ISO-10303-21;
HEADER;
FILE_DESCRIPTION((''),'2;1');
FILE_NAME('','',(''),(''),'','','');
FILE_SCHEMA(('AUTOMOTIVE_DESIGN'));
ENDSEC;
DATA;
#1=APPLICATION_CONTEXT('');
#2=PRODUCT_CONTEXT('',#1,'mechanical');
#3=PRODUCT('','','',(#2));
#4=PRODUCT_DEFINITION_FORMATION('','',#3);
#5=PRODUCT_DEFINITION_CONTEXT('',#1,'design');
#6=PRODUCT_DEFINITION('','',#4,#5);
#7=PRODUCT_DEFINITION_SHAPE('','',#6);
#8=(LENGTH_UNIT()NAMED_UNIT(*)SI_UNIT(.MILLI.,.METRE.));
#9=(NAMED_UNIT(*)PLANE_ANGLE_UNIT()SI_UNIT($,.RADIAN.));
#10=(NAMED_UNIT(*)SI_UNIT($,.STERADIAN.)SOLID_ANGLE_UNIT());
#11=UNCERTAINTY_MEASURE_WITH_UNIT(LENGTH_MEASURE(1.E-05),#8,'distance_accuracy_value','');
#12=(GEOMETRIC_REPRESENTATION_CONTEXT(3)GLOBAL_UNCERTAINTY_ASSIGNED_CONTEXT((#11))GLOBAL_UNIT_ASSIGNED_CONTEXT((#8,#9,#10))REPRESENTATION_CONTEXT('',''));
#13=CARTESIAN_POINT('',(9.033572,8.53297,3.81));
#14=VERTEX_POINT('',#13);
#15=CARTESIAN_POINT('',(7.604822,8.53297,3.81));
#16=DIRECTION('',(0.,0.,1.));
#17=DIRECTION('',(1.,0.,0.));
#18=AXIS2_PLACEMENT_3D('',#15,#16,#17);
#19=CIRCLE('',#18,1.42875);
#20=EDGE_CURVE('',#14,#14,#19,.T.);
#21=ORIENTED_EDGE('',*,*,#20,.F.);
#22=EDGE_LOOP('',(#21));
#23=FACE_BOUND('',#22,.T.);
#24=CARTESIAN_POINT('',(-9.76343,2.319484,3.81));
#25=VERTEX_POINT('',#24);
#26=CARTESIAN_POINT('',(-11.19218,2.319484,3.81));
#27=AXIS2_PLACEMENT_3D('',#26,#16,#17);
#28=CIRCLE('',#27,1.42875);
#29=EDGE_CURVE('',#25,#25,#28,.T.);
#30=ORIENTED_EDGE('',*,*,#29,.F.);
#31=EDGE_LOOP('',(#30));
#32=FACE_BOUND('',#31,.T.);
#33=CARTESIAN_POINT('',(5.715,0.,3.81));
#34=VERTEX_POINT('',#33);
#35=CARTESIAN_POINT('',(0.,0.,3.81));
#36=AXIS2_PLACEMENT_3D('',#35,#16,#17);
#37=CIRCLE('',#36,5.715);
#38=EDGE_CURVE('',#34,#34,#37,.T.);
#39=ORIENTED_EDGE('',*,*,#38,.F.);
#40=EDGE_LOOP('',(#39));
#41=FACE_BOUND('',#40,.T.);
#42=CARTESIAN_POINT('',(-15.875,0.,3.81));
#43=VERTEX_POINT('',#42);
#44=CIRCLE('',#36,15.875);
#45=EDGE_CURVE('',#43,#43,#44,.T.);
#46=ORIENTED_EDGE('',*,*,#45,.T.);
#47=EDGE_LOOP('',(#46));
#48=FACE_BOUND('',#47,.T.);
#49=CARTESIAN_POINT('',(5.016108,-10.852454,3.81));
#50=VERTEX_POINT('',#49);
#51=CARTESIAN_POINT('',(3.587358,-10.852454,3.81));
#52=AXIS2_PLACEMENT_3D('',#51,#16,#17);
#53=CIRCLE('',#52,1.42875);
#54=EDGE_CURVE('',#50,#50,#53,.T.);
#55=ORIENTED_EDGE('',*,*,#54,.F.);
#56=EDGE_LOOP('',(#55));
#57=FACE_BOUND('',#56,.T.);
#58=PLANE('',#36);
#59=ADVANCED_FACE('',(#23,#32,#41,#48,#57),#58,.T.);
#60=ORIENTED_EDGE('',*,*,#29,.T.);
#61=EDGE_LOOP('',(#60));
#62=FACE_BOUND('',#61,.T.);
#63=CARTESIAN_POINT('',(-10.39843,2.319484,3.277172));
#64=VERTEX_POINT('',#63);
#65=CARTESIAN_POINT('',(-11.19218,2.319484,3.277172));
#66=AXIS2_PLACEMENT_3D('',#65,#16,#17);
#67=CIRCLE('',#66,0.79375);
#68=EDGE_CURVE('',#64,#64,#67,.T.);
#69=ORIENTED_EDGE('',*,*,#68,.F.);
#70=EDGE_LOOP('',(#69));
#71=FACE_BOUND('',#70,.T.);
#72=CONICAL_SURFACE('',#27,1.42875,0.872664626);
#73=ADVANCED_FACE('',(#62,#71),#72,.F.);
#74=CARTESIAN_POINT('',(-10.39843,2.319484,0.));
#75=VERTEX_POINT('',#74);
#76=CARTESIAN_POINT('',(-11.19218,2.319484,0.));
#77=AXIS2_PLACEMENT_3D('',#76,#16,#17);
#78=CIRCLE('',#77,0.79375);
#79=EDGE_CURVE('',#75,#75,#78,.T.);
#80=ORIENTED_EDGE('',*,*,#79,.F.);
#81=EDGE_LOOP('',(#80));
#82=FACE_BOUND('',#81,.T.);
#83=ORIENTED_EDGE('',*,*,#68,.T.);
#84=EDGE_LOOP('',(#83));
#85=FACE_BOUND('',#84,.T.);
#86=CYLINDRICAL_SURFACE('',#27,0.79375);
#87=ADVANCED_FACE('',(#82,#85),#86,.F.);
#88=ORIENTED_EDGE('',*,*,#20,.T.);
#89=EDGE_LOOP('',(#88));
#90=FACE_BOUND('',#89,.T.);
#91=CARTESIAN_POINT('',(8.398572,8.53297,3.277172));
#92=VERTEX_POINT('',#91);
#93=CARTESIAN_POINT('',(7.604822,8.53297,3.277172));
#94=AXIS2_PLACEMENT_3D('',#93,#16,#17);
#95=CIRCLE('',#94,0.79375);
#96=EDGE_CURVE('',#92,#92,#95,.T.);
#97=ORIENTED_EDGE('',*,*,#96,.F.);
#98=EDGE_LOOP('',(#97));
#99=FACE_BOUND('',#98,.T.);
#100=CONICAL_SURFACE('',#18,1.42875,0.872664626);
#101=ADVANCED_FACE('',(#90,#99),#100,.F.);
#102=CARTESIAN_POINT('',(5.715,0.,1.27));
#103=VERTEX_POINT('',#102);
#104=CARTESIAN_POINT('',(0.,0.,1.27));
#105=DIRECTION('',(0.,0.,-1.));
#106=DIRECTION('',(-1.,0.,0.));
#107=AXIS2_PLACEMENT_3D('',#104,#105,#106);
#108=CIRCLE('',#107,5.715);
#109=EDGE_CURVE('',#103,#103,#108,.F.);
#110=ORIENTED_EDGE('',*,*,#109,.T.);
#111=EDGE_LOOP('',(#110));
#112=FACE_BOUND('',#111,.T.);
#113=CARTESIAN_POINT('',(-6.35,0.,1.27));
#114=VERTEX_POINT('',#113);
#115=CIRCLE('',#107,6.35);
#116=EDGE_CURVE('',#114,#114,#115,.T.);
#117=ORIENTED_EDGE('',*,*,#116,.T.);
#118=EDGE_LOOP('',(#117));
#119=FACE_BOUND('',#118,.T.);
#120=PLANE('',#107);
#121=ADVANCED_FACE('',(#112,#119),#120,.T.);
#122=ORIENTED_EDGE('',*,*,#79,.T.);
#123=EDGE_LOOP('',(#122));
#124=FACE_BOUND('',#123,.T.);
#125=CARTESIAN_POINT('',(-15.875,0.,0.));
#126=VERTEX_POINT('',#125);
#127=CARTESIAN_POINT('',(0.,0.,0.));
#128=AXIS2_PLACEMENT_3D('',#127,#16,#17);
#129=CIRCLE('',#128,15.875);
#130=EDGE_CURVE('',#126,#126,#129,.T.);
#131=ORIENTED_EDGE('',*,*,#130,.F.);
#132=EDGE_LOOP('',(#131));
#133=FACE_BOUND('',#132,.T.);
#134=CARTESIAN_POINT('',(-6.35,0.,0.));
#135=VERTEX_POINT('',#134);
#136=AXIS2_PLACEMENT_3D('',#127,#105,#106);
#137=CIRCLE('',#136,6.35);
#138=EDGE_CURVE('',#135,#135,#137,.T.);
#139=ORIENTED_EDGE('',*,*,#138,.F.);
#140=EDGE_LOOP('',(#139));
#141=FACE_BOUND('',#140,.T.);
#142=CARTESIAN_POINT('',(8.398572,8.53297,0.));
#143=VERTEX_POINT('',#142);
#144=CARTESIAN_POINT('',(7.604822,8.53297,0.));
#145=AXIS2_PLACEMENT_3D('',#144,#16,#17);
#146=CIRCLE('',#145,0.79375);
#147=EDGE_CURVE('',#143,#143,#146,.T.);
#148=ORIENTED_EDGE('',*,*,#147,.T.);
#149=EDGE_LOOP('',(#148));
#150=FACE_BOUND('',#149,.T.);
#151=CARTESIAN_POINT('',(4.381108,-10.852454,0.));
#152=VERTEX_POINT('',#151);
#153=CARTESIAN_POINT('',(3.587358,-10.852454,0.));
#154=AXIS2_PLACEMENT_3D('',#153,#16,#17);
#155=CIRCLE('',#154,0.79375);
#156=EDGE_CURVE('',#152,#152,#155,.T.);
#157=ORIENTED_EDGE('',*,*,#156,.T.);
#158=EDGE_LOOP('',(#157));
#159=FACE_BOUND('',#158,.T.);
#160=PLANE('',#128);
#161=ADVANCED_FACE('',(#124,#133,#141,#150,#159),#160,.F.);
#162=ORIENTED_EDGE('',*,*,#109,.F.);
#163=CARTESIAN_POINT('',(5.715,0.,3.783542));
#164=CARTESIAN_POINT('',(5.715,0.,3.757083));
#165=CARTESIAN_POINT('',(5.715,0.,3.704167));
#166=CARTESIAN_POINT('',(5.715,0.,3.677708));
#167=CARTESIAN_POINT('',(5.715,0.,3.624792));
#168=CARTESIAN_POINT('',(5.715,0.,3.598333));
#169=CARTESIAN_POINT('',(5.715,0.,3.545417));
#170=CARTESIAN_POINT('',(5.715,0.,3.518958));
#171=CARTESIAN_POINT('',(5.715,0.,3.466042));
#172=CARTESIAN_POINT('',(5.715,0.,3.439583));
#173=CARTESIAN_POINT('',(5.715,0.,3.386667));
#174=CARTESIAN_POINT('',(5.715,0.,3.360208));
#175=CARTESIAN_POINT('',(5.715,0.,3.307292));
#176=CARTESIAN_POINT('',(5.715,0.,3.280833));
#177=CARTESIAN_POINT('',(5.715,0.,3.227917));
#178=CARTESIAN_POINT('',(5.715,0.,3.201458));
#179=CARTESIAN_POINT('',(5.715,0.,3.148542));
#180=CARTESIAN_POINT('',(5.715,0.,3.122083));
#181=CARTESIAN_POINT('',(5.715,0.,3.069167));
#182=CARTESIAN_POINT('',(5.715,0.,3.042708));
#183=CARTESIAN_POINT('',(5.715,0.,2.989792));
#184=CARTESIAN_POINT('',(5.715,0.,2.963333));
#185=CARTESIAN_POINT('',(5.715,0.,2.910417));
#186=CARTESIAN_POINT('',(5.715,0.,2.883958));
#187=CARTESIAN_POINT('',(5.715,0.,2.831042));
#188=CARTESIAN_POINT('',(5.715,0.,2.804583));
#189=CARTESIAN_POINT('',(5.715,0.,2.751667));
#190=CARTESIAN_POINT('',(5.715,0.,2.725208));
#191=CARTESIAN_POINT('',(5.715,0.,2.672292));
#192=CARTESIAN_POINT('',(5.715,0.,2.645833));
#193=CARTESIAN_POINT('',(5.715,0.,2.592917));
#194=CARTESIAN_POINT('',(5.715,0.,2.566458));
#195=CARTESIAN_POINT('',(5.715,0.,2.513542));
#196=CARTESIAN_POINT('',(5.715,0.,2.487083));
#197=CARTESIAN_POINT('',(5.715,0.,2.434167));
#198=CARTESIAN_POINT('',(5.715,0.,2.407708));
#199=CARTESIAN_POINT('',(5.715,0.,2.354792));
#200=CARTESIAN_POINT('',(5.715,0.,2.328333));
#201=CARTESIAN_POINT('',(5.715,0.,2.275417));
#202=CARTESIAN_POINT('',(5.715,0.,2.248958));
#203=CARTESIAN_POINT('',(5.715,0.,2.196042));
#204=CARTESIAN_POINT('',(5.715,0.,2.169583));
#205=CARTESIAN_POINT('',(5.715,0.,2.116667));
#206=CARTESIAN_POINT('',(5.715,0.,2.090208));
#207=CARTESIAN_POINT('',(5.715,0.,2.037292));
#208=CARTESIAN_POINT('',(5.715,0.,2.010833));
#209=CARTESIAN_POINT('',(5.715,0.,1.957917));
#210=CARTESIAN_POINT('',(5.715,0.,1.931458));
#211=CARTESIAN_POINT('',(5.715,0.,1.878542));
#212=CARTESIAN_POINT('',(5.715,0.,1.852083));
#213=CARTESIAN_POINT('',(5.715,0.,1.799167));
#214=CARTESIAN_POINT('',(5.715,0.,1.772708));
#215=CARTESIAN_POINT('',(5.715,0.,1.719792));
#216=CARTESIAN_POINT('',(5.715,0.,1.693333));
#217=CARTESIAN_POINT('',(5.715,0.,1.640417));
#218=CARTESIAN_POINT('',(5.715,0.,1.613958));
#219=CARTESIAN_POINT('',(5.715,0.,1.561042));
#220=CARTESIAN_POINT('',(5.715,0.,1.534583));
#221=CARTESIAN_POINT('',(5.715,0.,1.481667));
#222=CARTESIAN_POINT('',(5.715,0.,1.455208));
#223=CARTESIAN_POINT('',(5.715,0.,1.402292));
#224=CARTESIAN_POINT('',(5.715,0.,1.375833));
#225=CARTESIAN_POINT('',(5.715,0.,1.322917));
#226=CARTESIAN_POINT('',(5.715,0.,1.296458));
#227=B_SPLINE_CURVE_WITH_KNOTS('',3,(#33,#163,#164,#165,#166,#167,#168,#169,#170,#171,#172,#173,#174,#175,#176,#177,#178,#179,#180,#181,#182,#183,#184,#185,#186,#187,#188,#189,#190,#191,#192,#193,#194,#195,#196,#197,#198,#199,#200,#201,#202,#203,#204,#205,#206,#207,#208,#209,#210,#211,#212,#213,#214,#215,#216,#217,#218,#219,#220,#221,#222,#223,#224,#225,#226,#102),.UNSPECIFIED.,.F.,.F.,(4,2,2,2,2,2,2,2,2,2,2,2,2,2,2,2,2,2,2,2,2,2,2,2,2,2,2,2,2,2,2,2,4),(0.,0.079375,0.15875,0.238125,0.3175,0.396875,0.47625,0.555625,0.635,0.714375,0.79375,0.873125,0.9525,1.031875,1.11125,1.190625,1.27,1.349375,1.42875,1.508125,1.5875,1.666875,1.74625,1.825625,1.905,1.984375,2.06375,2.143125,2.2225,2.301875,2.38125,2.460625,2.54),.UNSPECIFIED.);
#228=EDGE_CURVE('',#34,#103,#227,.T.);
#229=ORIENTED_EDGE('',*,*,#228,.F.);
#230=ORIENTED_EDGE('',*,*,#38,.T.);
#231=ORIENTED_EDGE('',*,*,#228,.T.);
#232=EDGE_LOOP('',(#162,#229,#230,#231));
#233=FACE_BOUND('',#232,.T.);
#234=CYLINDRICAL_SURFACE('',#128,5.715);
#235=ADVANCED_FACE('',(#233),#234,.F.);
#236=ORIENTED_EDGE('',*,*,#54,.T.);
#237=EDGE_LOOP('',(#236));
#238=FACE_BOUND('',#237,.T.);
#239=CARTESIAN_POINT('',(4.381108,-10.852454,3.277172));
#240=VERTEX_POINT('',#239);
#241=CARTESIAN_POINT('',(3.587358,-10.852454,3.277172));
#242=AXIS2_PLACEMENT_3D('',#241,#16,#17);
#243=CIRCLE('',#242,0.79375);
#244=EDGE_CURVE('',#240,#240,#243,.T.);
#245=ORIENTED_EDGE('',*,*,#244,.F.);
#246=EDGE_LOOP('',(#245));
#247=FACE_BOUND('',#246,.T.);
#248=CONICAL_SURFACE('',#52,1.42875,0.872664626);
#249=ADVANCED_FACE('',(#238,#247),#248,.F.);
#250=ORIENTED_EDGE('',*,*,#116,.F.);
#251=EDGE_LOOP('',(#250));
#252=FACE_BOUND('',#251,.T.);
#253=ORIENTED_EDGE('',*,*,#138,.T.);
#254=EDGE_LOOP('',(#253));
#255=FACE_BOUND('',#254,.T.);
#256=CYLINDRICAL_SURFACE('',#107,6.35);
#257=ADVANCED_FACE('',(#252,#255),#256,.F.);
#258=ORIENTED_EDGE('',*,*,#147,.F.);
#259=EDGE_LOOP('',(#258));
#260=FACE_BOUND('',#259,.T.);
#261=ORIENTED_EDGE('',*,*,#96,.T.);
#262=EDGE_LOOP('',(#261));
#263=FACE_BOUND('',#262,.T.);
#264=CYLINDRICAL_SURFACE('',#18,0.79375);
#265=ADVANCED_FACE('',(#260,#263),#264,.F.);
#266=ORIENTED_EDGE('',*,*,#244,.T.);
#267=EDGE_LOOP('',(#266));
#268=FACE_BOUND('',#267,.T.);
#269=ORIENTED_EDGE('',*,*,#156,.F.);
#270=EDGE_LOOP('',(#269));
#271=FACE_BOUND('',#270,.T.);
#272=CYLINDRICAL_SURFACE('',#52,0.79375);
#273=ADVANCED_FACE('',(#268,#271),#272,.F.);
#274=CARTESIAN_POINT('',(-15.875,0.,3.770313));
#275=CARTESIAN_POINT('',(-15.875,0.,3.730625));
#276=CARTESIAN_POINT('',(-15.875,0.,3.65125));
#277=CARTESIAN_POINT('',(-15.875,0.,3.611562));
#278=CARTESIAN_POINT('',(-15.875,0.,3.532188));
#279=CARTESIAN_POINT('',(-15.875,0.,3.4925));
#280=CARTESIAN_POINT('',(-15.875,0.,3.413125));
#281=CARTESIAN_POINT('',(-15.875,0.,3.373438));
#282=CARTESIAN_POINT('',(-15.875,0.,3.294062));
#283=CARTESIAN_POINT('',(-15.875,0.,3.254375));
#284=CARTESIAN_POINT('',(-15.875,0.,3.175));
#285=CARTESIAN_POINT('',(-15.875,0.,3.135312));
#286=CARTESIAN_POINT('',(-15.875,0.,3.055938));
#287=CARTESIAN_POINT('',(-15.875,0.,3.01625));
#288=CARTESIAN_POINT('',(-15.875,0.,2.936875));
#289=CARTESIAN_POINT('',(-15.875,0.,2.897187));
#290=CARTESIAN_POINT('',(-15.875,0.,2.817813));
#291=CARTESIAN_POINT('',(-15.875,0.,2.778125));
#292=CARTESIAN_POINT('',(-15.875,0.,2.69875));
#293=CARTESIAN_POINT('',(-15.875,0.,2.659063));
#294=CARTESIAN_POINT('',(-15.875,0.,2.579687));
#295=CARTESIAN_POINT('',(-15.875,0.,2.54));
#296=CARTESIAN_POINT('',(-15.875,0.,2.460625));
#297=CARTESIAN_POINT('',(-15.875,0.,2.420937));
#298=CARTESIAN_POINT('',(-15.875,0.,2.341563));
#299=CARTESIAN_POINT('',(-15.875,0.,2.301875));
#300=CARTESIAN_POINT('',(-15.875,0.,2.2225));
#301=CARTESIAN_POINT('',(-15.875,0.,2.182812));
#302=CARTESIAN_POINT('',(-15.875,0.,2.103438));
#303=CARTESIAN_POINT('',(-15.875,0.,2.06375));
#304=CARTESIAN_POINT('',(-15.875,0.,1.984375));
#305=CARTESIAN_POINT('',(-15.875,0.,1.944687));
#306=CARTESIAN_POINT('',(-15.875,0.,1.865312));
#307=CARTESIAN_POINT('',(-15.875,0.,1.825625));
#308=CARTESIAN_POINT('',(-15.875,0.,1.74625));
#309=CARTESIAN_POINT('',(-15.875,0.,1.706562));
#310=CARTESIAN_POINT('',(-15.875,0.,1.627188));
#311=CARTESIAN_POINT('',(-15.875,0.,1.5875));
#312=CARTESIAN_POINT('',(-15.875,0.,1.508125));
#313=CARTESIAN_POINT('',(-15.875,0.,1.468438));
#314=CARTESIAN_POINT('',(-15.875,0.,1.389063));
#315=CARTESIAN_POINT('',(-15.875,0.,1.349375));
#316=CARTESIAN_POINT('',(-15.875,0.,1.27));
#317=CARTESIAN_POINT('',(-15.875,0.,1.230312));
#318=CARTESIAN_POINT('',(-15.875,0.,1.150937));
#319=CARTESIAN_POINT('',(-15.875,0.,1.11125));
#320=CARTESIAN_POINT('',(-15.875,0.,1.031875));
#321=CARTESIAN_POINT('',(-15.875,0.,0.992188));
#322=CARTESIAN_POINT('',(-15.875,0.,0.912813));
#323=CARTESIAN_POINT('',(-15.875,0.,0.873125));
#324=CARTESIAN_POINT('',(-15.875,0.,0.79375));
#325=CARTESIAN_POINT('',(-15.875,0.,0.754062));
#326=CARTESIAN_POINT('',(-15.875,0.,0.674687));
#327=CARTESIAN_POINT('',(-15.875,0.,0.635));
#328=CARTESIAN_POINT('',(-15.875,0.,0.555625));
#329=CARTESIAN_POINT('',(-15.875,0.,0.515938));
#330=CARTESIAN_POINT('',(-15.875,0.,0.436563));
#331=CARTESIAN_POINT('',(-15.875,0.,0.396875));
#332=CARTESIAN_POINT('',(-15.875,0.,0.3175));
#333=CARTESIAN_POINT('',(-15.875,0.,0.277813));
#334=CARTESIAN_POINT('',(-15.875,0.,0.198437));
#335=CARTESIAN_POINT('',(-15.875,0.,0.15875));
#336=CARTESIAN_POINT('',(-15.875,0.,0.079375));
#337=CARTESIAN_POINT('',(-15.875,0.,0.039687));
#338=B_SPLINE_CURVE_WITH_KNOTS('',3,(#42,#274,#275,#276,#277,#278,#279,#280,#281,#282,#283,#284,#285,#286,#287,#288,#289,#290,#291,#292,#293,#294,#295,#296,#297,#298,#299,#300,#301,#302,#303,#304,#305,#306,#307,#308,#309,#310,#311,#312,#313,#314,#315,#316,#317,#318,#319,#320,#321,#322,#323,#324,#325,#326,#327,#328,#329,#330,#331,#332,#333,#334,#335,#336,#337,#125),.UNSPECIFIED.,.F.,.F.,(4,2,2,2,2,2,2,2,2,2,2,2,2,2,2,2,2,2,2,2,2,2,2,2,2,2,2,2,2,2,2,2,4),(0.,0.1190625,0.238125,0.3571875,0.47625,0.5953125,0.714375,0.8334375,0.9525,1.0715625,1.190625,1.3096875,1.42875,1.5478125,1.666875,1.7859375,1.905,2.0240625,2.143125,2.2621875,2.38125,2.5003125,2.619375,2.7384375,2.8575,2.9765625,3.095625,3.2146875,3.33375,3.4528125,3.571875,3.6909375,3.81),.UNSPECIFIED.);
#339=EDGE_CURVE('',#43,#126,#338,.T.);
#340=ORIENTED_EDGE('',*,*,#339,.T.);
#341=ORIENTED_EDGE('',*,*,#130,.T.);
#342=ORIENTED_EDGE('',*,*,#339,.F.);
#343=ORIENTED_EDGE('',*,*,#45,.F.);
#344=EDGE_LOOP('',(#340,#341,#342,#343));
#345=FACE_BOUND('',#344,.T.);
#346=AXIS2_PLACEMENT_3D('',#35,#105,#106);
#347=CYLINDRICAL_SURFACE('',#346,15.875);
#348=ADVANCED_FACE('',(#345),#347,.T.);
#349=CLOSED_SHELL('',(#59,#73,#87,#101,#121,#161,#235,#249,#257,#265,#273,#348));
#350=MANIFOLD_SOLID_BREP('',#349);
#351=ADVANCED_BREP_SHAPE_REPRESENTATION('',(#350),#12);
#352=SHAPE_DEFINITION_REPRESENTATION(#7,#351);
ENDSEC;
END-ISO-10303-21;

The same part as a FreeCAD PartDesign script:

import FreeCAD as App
import Part
import Sketcher
from FreeCAD import Vector
Q = App.Units.Quantity

doc = App.newDocument("Part")
body = doc.addObject("PartDesign::Body", "Body")

sketch1 = doc.addObject("Sketcher::SketchObject", "Sketch")
body.addObject(sketch1)
sketch1.AttachmentSupport = (doc.XY_Plane, [""])
sketch1.MapMode = "FlatFace"
sketch1.addGeometry(Part.Circle(Vector(0, 0, 0), Vector(0, 0, 1), 15.875), False)
sketch1.addConstraint([
    Sketcher.Constraint("Coincident", 0, 3, -1, 1),
    Sketcher.Constraint("Diameter", 0, Q("1.25 in")),
])
pad1 = doc.addObject("PartDesign::Pad", "Pad")
body.addObject(pad1)
pad1.Profile = sketch1
pad1.Length = Q("0.15 in")

sketch2 = doc.addObject("Sketcher::SketchObject", "Sketch001")
body.addObject(sketch2)
sketch2.AttachmentSupport = (doc.XY_Plane, [""])
sketch2.MapMode = "FlatFace"
sketch2.AttachmentOffset = App.Placement(Vector(0, 0, 0.15 * 25.4), App.Rotation())
sketch2.addGeometry(Part.Circle(Vector(0, 0, 0), Vector(0, 0, 1), 5.715), False)
sketch2.addConstraint([
    Sketcher.Constraint("Coincident", 0, 3, -1, 1),
    Sketcher.Constraint("Diameter", 0, Q("0.45 in")),
])
pocket1 = doc.addObject("PartDesign::Pocket", "Pocket")
body.addObject(pocket1)
pocket1.Profile = sketch2
pocket1.Type = "ThroughAll"

sketch3 = doc.addObject("Sketcher::SketchObject", "Sketch002")
body.addObject(sketch3)
sketch3.AttachmentSupport = (doc.XY_Plane, [""])
sketch3.MapMode = "FlatFace"
sketch3.addGeometry(Part.Circle(Vector(0, 0, 0), Vector(0, 0, 1), 6.35), False)
sketch3.addConstraint([
    Sketcher.Constraint("Coincident", 0, 3, -1, 1),
    Sketcher.Constraint("Diameter", 0, Q("0.5 in")),
])
pocket2 = doc.addObject("PartDesign::Pocket", "Pocket001")
body.addObject(pocket2)
pocket2.Profile = sketch3
pocket2.Length = Q("0.05 in")
pocket2.Reversed = True

sketch4 = doc.addObject("Sketcher::SketchObject", "Sketch003")
body.addObject(sketch4)
sketch4.AttachmentSupport = (doc.XY_Plane, [""])
sketch4.MapMode = "FlatFace"
sketch4.AttachmentOffset = App.Placement(Vector(0, 0, 0.15 * 25.4), App.Rotation())
sketch4.addGeometry(Part.Circle(Vector(7.604822, 8.53297, 0), Vector(0, 0, 1), 0.79375), False)
sketch4.addConstraint([
    Sketcher.Constraint("Diameter", 0, Q("0.0625 in")),
    Sketcher.Constraint("DistanceY", -1, 1, 0, 3, 8.53297),
    Sketcher.Constraint("DistanceX", -1, 1, 0, 3, 7.604822),
])
doc.recompute()
hole = doc.addObject("PartDesign::Hole", "Hole")
body.addObject(hole)
hole.Profile = sketch4
hole.ThreadType = "None"
hole.Diameter = Q("0.0625 in")
hole.DepthType = "ThroughAll"
hole.HoleCutType = "Countersink"
hole.HoleCutDiameter = Q("0.1125 in")
hole.HoleCutCountersinkAngle = 100
doc.recompute()

polarpattern = doc.addObject("PartDesign::PolarPattern", "PolarPattern")
body.addObject(polarpattern)
polarpattern.Originals = [hole]
polarpattern.Axis = (doc.Z_Axis, [""])
polarpattern.Angle = 360
polarpattern.Occurrences = 3
body.Tip = polarpattern

doc.recompute()
